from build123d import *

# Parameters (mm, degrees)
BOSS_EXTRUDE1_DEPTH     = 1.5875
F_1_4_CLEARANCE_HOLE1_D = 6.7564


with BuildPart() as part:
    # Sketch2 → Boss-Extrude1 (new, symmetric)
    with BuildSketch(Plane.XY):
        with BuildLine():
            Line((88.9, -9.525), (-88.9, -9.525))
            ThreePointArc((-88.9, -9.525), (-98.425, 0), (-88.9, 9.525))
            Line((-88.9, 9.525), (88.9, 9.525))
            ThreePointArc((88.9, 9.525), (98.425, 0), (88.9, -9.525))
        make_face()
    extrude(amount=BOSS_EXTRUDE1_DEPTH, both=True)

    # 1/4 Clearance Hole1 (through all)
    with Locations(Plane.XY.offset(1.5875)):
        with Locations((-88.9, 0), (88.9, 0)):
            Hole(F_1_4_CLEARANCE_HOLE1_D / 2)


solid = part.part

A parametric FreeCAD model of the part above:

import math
import FreeCAD as App
import Part
import Sketcher

V = App.Vector
Q = App.Units.Quantity

doc = App.newDocument("Part")
body = doc.addObject("PartDesign::Body", "Body")

sketch1 = body.newObject("Sketcher::SketchObject", "Sketch")
sketch1.AttachmentSupport = (doc.getObject("XY_Plane"), [""])
sketch1.MapMode = "FlatFace"
sketch1.addGeometry([
    Part.LineSegment(V(-89, -10, 0), V(89, -10, 0)),
    Part.ArcOfCircle(Part.Circle(V(89, 0, 0), V(0, 0, 1), 10), math.radians(-90), math.radians(90)),
    Part.LineSegment(V(89, 10, 0), V(-89, 10, 0)),
    Part.ArcOfCircle(Part.Circle(V(-89, 0, 0), V(0, 0, 1), 10), math.radians(90), math.radians(270)),
], False)
sketch1.addConstraint([
    Sketcher.Constraint("Tangent", 0, 2, 1, 1),
    Sketcher.Constraint("Tangent", 1, 2, 2, 1),
    Sketcher.Constraint("Tangent", 2, 2, 3, 1),
    Sketcher.Constraint("Tangent", 3, 2, 0, 1),
    Sketcher.Constraint("Horizontal", 0),
    Sketcher.Constraint("Horizontal", 2),
    Sketcher.Constraint("Symmetric", 1, 3, 3, 3, -1, 1),
    Sketcher.Constraint("DistanceX", 0, 1, 0, 2, Q("7 in")),
    Sketcher.Constraint("Radius", 1, Q("0.375 in")),
])
pad1 = body.newObject("PartDesign::Pad", "Pad")
pad1.Profile = sketch1
pad1.Length = Q("0.125 in")
pad1.Midplane = True

sketch2 = body.newObject("Sketcher::SketchObject", "Sketch001")
sketch2.AttachmentSupport = (doc.getObject("XY_Plane"), [""])
sketch2.MapMode = "FlatFace"
sketch2.AttachmentOffset = App.Placement(V(0, 0, 0.0625 * 25.4), App.Rotation())
sketch2.addGeometry([
    Part.Circle(V(-88.9, 0, 0), V(0, 0, 1), 3.4),
    Part.Circle(V(88.9, 0, 0), V(0, 0, 1), 3.4),
], False)
sketch2.addConstraint([
    Sketcher.Constraint("Equal", 0, 1),
    Sketcher.Constraint("Symmetric", 0, 3, 1, 3, -1, 1),
    Sketcher.Constraint("PointOnObject", 0, 3, -1),
    Sketcher.Constraint("Diameter", 0, Q("0.266 in")),
    Sketcher.Constraint("DistanceX", 0, 3, 1, 3, Q("7 in")),
])
doc.recompute()
hole = body.newObject("PartDesign::Hole", "Hole")
hole.Profile = sketch2
hole.ThreadType = "None"
hole.Diameter = Q("0.266 in")
hole.DepthType = "ThroughAll"

doc.recompute()
